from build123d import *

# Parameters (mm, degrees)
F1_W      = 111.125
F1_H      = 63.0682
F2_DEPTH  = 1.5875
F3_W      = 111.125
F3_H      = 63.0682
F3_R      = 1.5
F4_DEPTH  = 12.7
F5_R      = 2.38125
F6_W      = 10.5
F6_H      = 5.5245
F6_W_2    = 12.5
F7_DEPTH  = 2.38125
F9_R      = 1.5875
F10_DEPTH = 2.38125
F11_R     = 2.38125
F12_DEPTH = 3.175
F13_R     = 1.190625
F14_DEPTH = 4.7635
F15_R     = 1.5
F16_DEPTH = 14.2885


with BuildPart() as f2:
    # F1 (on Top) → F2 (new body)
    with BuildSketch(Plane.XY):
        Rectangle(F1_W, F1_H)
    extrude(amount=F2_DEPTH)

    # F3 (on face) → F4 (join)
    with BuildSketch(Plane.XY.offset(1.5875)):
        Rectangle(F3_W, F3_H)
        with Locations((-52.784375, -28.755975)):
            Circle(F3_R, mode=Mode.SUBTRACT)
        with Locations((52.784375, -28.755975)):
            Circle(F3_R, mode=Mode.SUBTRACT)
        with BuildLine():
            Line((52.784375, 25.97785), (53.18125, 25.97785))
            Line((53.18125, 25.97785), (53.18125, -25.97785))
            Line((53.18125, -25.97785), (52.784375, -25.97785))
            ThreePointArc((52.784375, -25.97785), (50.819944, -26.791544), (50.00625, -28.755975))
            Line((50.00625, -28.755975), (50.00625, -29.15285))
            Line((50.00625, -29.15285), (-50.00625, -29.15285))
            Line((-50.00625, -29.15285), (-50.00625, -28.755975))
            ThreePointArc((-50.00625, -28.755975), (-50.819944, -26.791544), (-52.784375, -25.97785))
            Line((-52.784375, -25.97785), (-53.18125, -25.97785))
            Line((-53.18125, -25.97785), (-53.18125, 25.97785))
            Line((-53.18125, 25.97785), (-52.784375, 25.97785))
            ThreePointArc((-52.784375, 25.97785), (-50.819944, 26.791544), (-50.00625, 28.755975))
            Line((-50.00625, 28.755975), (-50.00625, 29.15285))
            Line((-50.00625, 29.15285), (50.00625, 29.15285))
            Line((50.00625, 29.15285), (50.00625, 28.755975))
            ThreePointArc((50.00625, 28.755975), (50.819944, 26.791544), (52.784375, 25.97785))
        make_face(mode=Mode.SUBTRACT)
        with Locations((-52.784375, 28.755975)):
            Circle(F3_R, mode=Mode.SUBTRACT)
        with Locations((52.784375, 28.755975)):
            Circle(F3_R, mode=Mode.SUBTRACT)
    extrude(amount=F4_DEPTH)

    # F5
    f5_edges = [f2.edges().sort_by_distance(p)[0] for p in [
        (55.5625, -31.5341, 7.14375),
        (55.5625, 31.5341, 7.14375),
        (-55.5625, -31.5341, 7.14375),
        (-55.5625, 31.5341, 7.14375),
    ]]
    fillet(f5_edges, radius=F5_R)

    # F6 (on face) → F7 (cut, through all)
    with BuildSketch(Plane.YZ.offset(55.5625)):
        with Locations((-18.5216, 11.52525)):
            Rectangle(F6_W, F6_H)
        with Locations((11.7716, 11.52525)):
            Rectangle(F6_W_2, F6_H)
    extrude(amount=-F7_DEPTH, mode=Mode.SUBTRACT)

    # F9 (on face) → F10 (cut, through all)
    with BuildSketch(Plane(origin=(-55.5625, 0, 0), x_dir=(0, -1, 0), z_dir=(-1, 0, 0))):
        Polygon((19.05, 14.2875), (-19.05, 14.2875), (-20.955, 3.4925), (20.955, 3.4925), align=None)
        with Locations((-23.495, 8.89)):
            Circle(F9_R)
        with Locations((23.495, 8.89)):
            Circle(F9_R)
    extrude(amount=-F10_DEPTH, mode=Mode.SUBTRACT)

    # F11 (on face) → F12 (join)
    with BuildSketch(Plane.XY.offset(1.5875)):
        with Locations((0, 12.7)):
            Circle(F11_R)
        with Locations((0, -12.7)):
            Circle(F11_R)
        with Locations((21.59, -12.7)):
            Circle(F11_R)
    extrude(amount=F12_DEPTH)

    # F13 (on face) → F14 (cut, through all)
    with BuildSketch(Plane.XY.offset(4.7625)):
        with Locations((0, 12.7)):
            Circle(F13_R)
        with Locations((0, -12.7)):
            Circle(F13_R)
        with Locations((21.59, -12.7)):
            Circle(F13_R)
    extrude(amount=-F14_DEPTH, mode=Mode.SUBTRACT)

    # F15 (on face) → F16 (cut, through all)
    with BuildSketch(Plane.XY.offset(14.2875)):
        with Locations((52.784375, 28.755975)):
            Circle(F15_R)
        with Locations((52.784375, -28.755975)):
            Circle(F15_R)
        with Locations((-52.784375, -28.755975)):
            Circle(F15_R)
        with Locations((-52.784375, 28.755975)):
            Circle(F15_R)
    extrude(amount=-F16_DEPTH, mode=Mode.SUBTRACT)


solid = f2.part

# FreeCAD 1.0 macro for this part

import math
import FreeCAD as App
import Part
import Sketcher

V = App.Vector
Q = App.Units.Quantity


def edges_at(feature, points):
    """Names of the edges that pass closest to the given points."""
    edges = feature.Shape.Edges
    near = lambda p: min(range(len(edges)), key=lambda i: edges[i].distToShape(Part.Vertex(*p))[0])
    return sorted({f"Edge{near(p) + 1}" for p in points})


def add_polygon(sketch, points):
    """Adds a closed chain of lines whose ends are joined by coincident constraints."""
    first, n = sketch.GeometryCount, len(points)
    for a, b in zip(points, points[1:] + points[:1]):
        sketch.addGeometry(Part.LineSegment(App.Vector(*a, 0), App.Vector(*b, 0)), False)
    for i in range(n):
        sketch.addConstraint(Sketcher.Constraint("Coincident", first + i, 2, first + (i + 1) % n, 1))

doc = App.newDocument("Part")
body = doc.addObject("PartDesign::Body", "Body")

# Sketch on XY plane
sketch1 = body.newObject("Sketcher::SketchObject", "Sketch")
sketch1.AttachmentSupport = (doc.getObject("XY_Plane"), [""])
sketch1.MapMode = "FlatFace"
add_polygon(sketch1, [(-56, 32), (-56, -32), (56, -32), (56, 32)])  # lines 0-3
sketch1.addConstraint([
    Sketcher.Constraint("Vertical", 0),
    Sketcher.Constraint("Horizontal", 1),
    Sketcher.Constraint("Vertical", 2),
    Sketcher.Constraint("Horizontal", 3),
    Sketcher.Constraint("Symmetric", 0, 2, 2, 2, -1, 1),
    Sketcher.Constraint("DistanceX", 1, 1, 1, 2, Q("4.375 in")),
    Sketcher.Constraint("DistanceY", 0, 2, 0, 1, Q("2.483 in")),
])
pad1 = body.newObject("PartDesign::Pad", "Pad")
pad1.Profile = sketch1
pad1.Length = Q("0.0625 in")

# Sketch on XY plane
sketch2 = body.newObject("Sketcher::SketchObject", "Sketch001")
sketch2.AttachmentSupport = (doc.getObject("XY_Plane"), [""])
sketch2.MapMode = "FlatFace"
sketch2.AttachmentOffset = App.Placement(V(0, 0, 0.0625 * 25.4), App.Rotation())
add_polygon(sketch2, [(-55.56, 31.53), (-55.56, -31.53), (55.56, -31.53), (55.56, 31.53)])  # lines 0-3
sketch2.addGeometry(Part.Circle(V(-52.78, -28.76, 0), V(0, 0, 1), 1.5), False)  # 4
sketch2.addGeometry(Part.Circle(V(52.78, -28.76, 0), V(0, 0, 1), 1.5), False)  # 5
sketch2.addGeometry(Part.Circle(V(-52.78, 28.76, 0), V(0, 0, 1), 1.5), False)  # 6
sketch2.addGeometry(Part.ArcOfCircle(Part.Circle(V(52.78, 28.76, 0), V(0, 0, 1), 2.78), math.radians(-180), math.radians(-90)), False)  # 7
sketch2.addGeometry(Part.LineSegment(V(52.78, 25.98, 0), V(53.18, 25.98, 0)), False)  # 8
sketch2.addGeometry(Part.LineSegment(V(53.18, 25.98, 0), V(53.18, -25.98, 0)), False)  # 9
sketch2.addGeometry(Part.LineSegment(V(53.18, -25.98, 0), V(52.78, -25.98, 0)), False)  # 10
sketch2.addGeometry(Part.ArcOfCircle(Part.Circle(V(52.78, -28.76, 0), V(0, 0, 1), 2.78), math.radians(90), math.radians(180)), False)  # 11
sketch2.addGeometry(Part.LineSegment(V(50.01, -28.76, 0), V(50.01, -29.15, 0)), False)  # 12
sketch2.addGeometry(Part.LineSegment(V(50.01, -29.15, 0), V(-50.01, -29.15, 0)), False)  # 13
sketch2.addGeometry(Part.LineSegment(V(-50.01, -29.15, 0), V(-50.01, -28.76, 0)), False)  # 14
sketch2.addGeometry(Part.ArcOfCircle(Part.Circle(V(-52.78, -28.76, 0), V(0, 0, 1), 2.78), math.radians(0), math.radians(90)), False)  # 15
sketch2.addGeometry(Part.LineSegment(V(-52.78, -25.98, 0), V(-53.18, -25.98, 0)), False)  # 16
sketch2.addGeometry(Part.LineSegment(V(-53.18, -25.98, 0), V(-53.18, 25.98, 0)), False)  # 17
sketch2.addGeometry(Part.LineSegment(V(-53.18, 25.98, 0), V(-52.78, 25.98, 0)), False)  # 18
sketch2.addGeometry(Part.ArcOfCircle(Part.Circle(V(-52.78, 28.76, 0), V(0, 0, 1), 2.78), math.radians(-90), math.radians(0)), False)  # 19
sketch2.addGeometry(Part.LineSegment(V(-50.01, 28.76, 0), V(-50.01, 29.15, 0)), False)  # 20
sketch2.addGeometry(Part.LineSegment(V(-50.01, 29.15, 0), V(50.01, 29.15, 0)), False)  # 21
sketch2.addGeometry(Part.LineSegment(V(50.01, 29.15, 0), V(50.01, 28.76, 0)), False)  # 22
sketch2.addGeometry(Part.Circle(V(52.78, 28.76, 0), V(0, 0, 1), 1.5), False)  # 23
sketch2.addConstraint([
    Sketcher.Constraint("Tangent", 7, 2, 8, 1),
    Sketcher.Constraint("Coincident", 8, 2, 9, 1),
    Sketcher.Constraint("Coincident", 9, 2, 10, 1),
    Sketcher.Constraint("Tangent", 10, 2, 11, 1),
    Sketcher.Constraint("Tangent", 11, 2, 12, 1),
    Sketcher.Constraint("Coincident", 12, 2, 13, 1),
    Sketcher.Constraint("Coincident", 13, 2, 14, 1),
    Sketcher.Constraint("Tangent", 14, 2, 15, 1),
    Sketcher.Constraint("Tangent", 15, 2, 16, 1),
    Sketcher.Constraint("Coincident", 16, 2, 17, 1),
    Sketcher.Constraint("Coincident", 17, 2, 18, 1),
    Sketcher.Constraint("Tangent", 18, 2, 19, 1),
    Sketcher.Constraint("Tangent", 19, 2, 20, 1),
    Sketcher.Constraint("Coincident", 20, 2, 21, 1),
    Sketcher.Constraint("Coincident", 21, 2, 22, 1),
    Sketcher.Constraint("Tangent", 22, 2, 7, 1),
    Sketcher.Constraint("Vertical", 0),
    Sketcher.Constraint("Horizontal", 1),
    Sketcher.Constraint("Vertical", 2),
    Sketcher.Constraint("Horizontal", 3),
    Sketcher.Constraint("Horizontal", 8),
    Sketcher.Constraint("Vertical", 9),
    Sketcher.Constraint("Horizontal", 10),
    Sketcher.Constraint("Vertical", 12),
    Sketcher.Constraint("Horizontal", 13),
    Sketcher.Constraint("Vertical", 14),
    Sketcher.Constraint("Horizontal", 16),
    Sketcher.Constraint("Vertical", 17),
    Sketcher.Constraint("Horizontal", 18),
    Sketcher.Constraint("Vertical", 20),
    Sketcher.Constraint("Horizontal", 21),
    Sketcher.Constraint("Vertical", 22),
    Sketcher.Constraint("Coincident", 11, 3, 5, 3),
    Sketcher.Constraint("Coincident", 15, 3, 4, 3),
    Sketcher.Constraint("Coincident", 19, 3, 6, 3),
    Sketcher.Constraint("Coincident", 23, 3, 7, 3),
    Sketcher.Constraint("Equal", 4, 5),
    Sketcher.Constraint("Equal", 5, 6),
    Sketcher.Constraint("Equal", 7, 11),
    Sketcher.Constraint("Equal", 11, 15),
    Sketcher.Constraint("Equal", 15, 19),
    Sketcher.Constraint("Equal", 6, 23),
    Sketcher.Constraint("Symmetric", 5, 3, 6, 3, -1, 1),
    Sketcher.Constraint("Symmetric", 4, 3, 7, 3, -1, 1),
    Sketcher.Constraint("Symmetric", 0, 2, 2, 2, -1, 1),
    Sketcher.Constraint("Symmetric", 4, 3, 5, 3, -2),
    Sketcher.Constraint("Equal", 10, 16),
    Sketcher.Constraint("Equal", 18, 12),
    Sketcher.Constraint("Equal", 14, 20),
    Sketcher.Constraint("Radius", 7, Q("0.109375 in")),
    Sketcher.Constraint("Diameter", 4, 3.0),
    Sketcher.Constraint("DistanceX", 1, 1, 1, 2, Q("4.375 in")),
    Sketcher.Constraint("DistanceX", 8, 1, 8, 2, Q("0.015625 in")),
    Sketcher.Constraint("DistanceX", 13, 2, 13, 1, Q("3.9375 in")),
    Sketcher.Constraint("DistanceY", 0, 2, 0, 1, Q("2.483 in")),
    Sketcher.Constraint("DistanceY", 9, 2, 9, 1, Q("2.0455 in")),
])
pad2 = body.newObject("PartDesign::Pad", "Pad001")
pad2.Profile = sketch2
pad2.Length = Q("0.5 in")
doc.recompute()

fillet = body.newObject("PartDesign::Fillet", "Fillet")
fillet.Base = (pad2, edges_at(pad2, [
    (55.562, -31.534, 7.144),
    (55.562, 31.534, 7.144),
    (-55.562, -31.534, 7.144),
    (-55.562, 31.534, 7.144),
]))
fillet.Radius = Q("0.09375 in")

# Sketch on YZ plane
sketch3 = body.newObject("Sketcher::SketchObject", "Sketch002")
sketch3.AttachmentSupport = (doc.getObject("YZ_Plane"), [""])
sketch3.MapMode = "FlatFace"
sketch3.AttachmentOffset = App.Placement(V(0, 0, 2.1875 * 25.4), App.Rotation())
add_polygon(sketch3, [(-24, 14), (-24, 9), (-13, 9), (-13, 14)])  # lines 0-3
add_polygon(sketch3, [(6, 14), (6, 9), (18, 9), (18, 14)])  # lines 4-7
sketch3.addConstraint([
    Sketcher.Constraint("Vertical", 0),
    Sketcher.Constraint("Horizontal", 1),
    Sketcher.Constraint("Vertical", 2),
    Sketcher.Constraint("Horizontal", 3),
    Sketcher.Constraint("Vertical", 4),
    Sketcher.Constraint("Horizontal", 5),
    Sketcher.Constraint("Vertical", 6),
    Sketcher.Constraint("Horizontal", 7),
    Sketcher.Constraint("Horizontal", 1, 2, 4, 2),
    Sketcher.Constraint("Horizontal", 3, 2, 6, 2),
    Sketcher.Constraint("DistanceY", 0, 2, 0, 1, Q("0.2175 in")),
    Sketcher.Constraint("DistanceY", -1, 1, 0, 2, Q("0.345 in")),
    Sketcher.Constraint("DistanceX", 1, 1, 1, 2, 10.5),
    Sketcher.Constraint("DistanceX", 5, 1, 5, 2, 12.5),
    Sketcher.Constraint("DistanceX", 0, 2, -1, 1, 23.7716),
    Sketcher.Constraint("DistanceX", -1, 1, 4, 2, 5.5216),
])
pocket1 = body.newObject("PartDesign::Pocket", "Pocket")
pocket1.Profile = sketch3
pocket1.Length = Q("0.09375 in")

# Sketch on YZ plane
sketch4 = body.newObject("Sketcher::SketchObject", "Sketch003")
sketch4.AttachmentSupport = (doc.getObject("YZ_Plane"), [""])
sketch4.MapMode = "FlatFace"
sketch4.AttachmentOffset = App.Placement(V(0, 0, -2.1875 * 25.4), App.Rotation())
add_polygon(sketch4, [(-19.1, 14.3), (19.1, 14.3), (21, 3.5), (-21, 3.5)])  # lines 0-3
sketch4.addGeometry(Part.Circle(V(23.5, 8.9, 0), V(0, 0, 1), 1.6), False)  # 4
sketch4.addGeometry(Part.Circle(V(-23.5, 8.9, 0), V(0, 0, 1), 1.6), False)  # 5
sketch4.addConstraint([
    Sketcher.Constraint("Horizontal", 0),
    Sketcher.Constraint("Horizontal", 2),
    Sketcher.Constraint("Equal", 4, 5),
    Sketcher.Constraint("Symmetric", 4, 3, 5, 3, -2),
    Sketcher.Constraint("Equal", 1, 3),
    Sketcher.Constraint("Diameter", 4, Q("0.125 in")),
    Sketcher.Constraint("DistanceX", 0, 1, 0, 2, Q("1.5 in")),
    Sketcher.Constraint("DistanceX", 2, 2, 2, 1, Q("1.65 in")),
    Sketcher.Constraint("DistanceX", 1, 2, 4, 3, Q("0.1 in")),
    Sketcher.Constraint("DistanceX", 5, 3, 2, 2, Q("0.1 in")),
    Sketcher.Constraint("DistanceY", -1, 1, 4, 3, Q("0.35 in")),
    Sketcher.Constraint("DistanceY", -1, 1, 0, 2, Q("0.5625 in")),
    Sketcher.Constraint("DistanceY", 1, 2, 0, 2, Q("0.425 in")),
])
pocket2 = body.newObject("PartDesign::Pocket", "Pocket001")
pocket2.Profile = sketch4
pocket2.Length = Q("0.09375 in")
pocket2.Reversed = True

# Sketch on XY plane
sketch5 = body.newObject("Sketcher::SketchObject", "Sketch004")
sketch5.AttachmentSupport = (doc.getObject("XY_Plane"), [""])
sketch5.MapMode = "FlatFace"
sketch5.AttachmentOffset = App.Placement(V(0, 0, 0.0625 * 25.4), App.Rotation())
sketch5.addGeometry([
    Part.Circle(V(0, 12.7, 0), V(0, 0, 1), 2.4),
    Part.Circle(V(0, -12.7, 0), V(0, 0, 1), 2.4),
    Part.Circle(V(21.6, -12.7, 0), V(0, 0, 1), 2.4),
], False)
sketch5.addConstraint([
    Sketcher.Constraint("Equal", 0, 1),
    Sketcher.Constraint("Equal", 1, 2),
    Sketcher.Constraint("Symmetric", 0, 3, 1, 3, -1, 1),
    Sketcher.Constraint("PointOnObject", 0, 3, -2),
    Sketcher.Constraint("Horizontal", 1, 3, 2, 3),
    Sketcher.Constraint("Diameter", 0, Q("0.1875 in")),
    Sketcher.Constraint("DistanceY", 1, 3, 0, 3, Q("1 in")),
    Sketcher.Constraint("DistanceX", -1, 1, 2, 3, Q("0.85 in")),
])
pad3 = body.newObject("PartDesign::Pad", "Pad002")
pad3.Profile = sketch5
pad3.Length = Q("0.125 in")

# Sketch on XY plane
sketch6 = body.newObject("Sketcher::SketchObject", "Sketch005")
sketch6.AttachmentSupport = (doc.getObject("XY_Plane"), [""])
sketch6.MapMode = "FlatFace"
sketch6.AttachmentOffset = App.Placement(V(0, 0, 0.1875 * 25.4), App.Rotation())
sketch6.addGeometry([
    Part.Circle(V(0, 12.7, 0), V(0, 0, 1), 1.2),
    Part.Circle(V(0, -12.7, 0), V(0, 0, 1), 1.2),
    Part.Circle(V(21.6, -12.7, 0), V(0, 0, 1), 1.2),
], False)
sketch6.addConstraint([
    Sketcher.Constraint("Equal", 0, 1),
    Sketcher.Constraint("Equal", 1, 2),
    Sketcher.Constraint("Symmetric", 0, 3, 1, 3, -1, 1),
    Sketcher.Constraint("PointOnObject", 0, 3, -2),
    Sketcher.Constraint("Horizontal", 1, 3, 2, 3),
    Sketcher.Constraint("Diameter", 0, Q("0.09375 in")),
    Sketcher.Constraint("DistanceY", 1, 3, 0, 3, Q("1 in")),
    Sketcher.Constraint("DistanceX", -1, 1, 2, 3, Q("0.85 in")),
])
pocket3 = body.newObject("PartDesign::Pocket", "Pocket002")
pocket3.Profile = sketch6
pocket3.Type = "ThroughAll"

# Sketch on XY plane
sketch7 = body.newObject("Sketcher::SketchObject", "Sketch006")
sketch7.AttachmentSupport = (doc.getObject("XY_Plane"), [""])
sketch7.MapMode = "FlatFace"
sketch7.AttachmentOffset = App.Placement(V(0, 0, 0.5625 * 25.4), App.Rotation())
sketch7.addGeometry([
    Part.Circle(V(52.8, 28.8, 0), V(0, 0, 1), 1.5),
    Part.Circle(V(52.8, -28.8, 0), V(0, 0, 1), 1.5),
    Part.Circle(V(-52.8, -28.8, 0), V(0, 0, 1), 1.5),
    Part.Circle(V(-52.8, 28.8, 0), V(0, 0, 1), 1.5),
], False)
sketch7.addConstraint([
    Sketcher.Constraint("Equal", 0, 1),
    Sketcher.Constraint("Equal", 1, 2),
    Sketcher.Constraint("Equal", 2, 3),
    Sketcher.Constraint("Symmetric", 0, 3, 2, 3, -1, 1),
    Sketcher.Constraint("Symmetric", 1, 3, 3, 3, -1, 1),
    Sketcher.Constraint("Symmetric", 1, 3, 2, 3, -2),
    Sketcher.Constraint("Diameter", 0, 3.0),
    Sketcher.Constraint("DistanceX", -1, 1, 0, 3, Q("2.078125 in")),
    Sketcher.Constraint("DistanceY", 1, 3, 0, 3, 57.51195),
])
pocket4 = body.newObject("PartDesign::Pocket", "Pocket003")
pocket4.Profile = sketch7
pocket4.Type = "ThroughAll"

doc.recompute()
